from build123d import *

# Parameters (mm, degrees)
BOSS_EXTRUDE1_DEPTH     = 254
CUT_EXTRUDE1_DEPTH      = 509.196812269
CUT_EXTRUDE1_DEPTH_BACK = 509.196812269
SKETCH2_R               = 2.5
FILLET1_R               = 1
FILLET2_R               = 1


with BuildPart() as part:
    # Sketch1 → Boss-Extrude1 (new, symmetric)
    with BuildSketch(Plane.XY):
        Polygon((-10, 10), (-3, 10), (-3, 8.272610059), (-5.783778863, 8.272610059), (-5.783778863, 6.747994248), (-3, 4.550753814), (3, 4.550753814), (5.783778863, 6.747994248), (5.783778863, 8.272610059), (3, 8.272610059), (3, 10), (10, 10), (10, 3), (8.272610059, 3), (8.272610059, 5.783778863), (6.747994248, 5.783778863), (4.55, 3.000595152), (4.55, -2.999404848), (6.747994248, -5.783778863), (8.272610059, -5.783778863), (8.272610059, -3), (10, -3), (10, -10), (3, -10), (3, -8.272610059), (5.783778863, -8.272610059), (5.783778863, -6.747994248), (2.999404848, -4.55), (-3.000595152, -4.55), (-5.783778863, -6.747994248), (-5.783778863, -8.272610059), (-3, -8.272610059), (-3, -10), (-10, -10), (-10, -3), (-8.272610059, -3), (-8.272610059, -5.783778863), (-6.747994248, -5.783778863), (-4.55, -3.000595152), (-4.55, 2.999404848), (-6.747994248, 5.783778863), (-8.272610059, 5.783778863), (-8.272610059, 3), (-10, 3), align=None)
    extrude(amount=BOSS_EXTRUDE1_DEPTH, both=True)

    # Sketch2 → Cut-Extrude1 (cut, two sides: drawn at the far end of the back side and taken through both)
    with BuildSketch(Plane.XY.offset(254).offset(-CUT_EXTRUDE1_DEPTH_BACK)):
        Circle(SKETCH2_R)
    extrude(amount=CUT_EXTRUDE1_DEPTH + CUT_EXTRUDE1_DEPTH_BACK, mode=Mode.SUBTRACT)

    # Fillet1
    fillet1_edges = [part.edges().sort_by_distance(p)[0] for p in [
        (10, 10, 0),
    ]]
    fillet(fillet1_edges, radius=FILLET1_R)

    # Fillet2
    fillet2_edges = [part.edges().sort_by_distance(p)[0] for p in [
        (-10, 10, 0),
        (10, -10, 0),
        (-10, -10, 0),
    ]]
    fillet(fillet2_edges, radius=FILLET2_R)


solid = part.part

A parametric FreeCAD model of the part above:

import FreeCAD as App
import Part
import Sketcher

V = App.Vector
Q = App.Units.Quantity


def edges_at(feature, points):
    """Names of the edges that pass closest to the given points."""
    edges = feature.Shape.Edges
    near = lambda p: min(range(len(edges)), key=lambda i: edges[i].distToShape(Part.Vertex(*p))[0])
    return sorted({f"Edge{near(p) + 1}" for p in points})

doc = App.newDocument("Part")
body = doc.addObject("PartDesign::Body", "Body")

sketch1 = body.newObject("Sketcher::SketchObject", "Sketch")
sketch1.AttachmentSupport = (doc.getObject("XY_Plane"), [""])
sketch1.MapMode = "FlatFace"
sketch1.addGeometry(Part.LineSegment(V(-3, 10, 0), V(-10, 10, 0)), False)
sketch1.addGeometry(Part.LineSegment(V(-10, 10, 0), V(-10, 3, 0)), False)
sketch1.addGeometry(Part.LineSegment(V(-10, 3, 0), V(-8.3, 3, 0)), False)
sketch1.addGeometry(Part.LineSegment(V(-8.3, 3, 0), V(-8.3, 5.8, 0)), False)
sketch1.addGeometry(Part.LineSegment(V(-8.3, 5.8, 0), V(-6.7, 5.8, 0)), False)
sketch1.addGeometry(Part.LineSegment(V(-6.7, 5.8, 0), V(-4.5, 3, 0)), False)
sketch1.addGeometry(Part.LineSegment(V(-4.5, 3, 0), V(-4.5, -3, 0)), False)
sketch1.addGeometry(Part.LineSegment(V(-4.5, -3, 0), V(-6.7, -5.8, 0)), False)
sketch1.addGeometry(Part.LineSegment(V(-6.7, -5.8, 0), V(-8.3, -5.8, 0)), False)
sketch1.addGeometry(Part.LineSegment(V(-8.3, -5.8, 0), V(-8.3, -3, 0)), False)
sketch1.addGeometry(Part.LineSegment(V(-8.3, -3, 0), V(-10, -3, 0)), False)
sketch1.addGeometry(Part.LineSegment(V(-10, -3, 0), V(-10, -10, 0)), False)
sketch1.addGeometry(Part.LineSegment(V(-10, -10, 0), V(-3, -10, 0)), False)
sketch1.addGeometry(Part.LineSegment(V(-3, -10, 0), V(-3, -8.3, 0)), False)
sketch1.addGeometry(Part.LineSegment(V(-3, -8.3, 0), V(-5.8, -8.3, 0)), False)
sketch1.addGeometry(Part.LineSegment(V(-5.8, -8.3, 0), V(-5.8, -6.7, 0)), False)
sketch1.addGeometry(Part.LineSegment(V(-5.8, -6.7, 0), V(-3, -4.5, 0)), False)
sketch1.addGeometry(Part.LineSegment(V(-3, -4.5, 0), V(3, -4.5, 0)), False)
sketch1.addGeometry(Part.LineSegment(V(3, -4.5, 0), V(5.8, -6.7, 0)), False)
sketch1.addGeometry(Part.LineSegment(V(5.8, -6.7, 0), V(5.8, -8.3, 0)), False)
sketch1.addGeometry(Part.LineSegment(V(5.8, -8.3, 0), V(3, -8.3, 0)), False)
sketch1.addGeometry(Part.LineSegment(V(3, -8.3, 0), V(3, -10, 0)), False)
sketch1.addGeometry(Part.LineSegment(V(3, -10, 0), V(10, -10, 0)), False)
sketch1.addGeometry(Part.LineSegment(V(10, -10, 0), V(10, -3, 0)), False)
sketch1.addGeometry(Part.LineSegment(V(10, -3, 0), V(8.3, -3, 0)), False)
sketch1.addGeometry(Part.LineSegment(V(8.3, -3, 0), V(8.3, -5.8, 0)), False)
sketch1.addGeometry(Part.LineSegment(V(8.3, -5.8, 0), V(6.7, -5.8, 0)), False)
sketch1.addGeometry(Part.LineSegment(V(6.7, -5.8, 0), V(4.5, -3, 0)), False)
sketch1.addGeometry(Part.LineSegment(V(4.5, -3, 0), V(4.5, 3, 0)), False)
sketch1.addGeometry(Part.LineSegment(V(4.5, 3, 0), V(6.7, 5.8, 0)), False)
sketch1.addGeometry(Part.LineSegment(V(6.7, 5.8, 0), V(8.3, 5.8, 0)), False)
sketch1.addGeometry(Part.LineSegment(V(8.3, 5.8, 0), V(8.3, 3, 0)), False)
sketch1.addGeometry(Part.LineSegment(V(8.3, 3, 0), V(10, 3, 0)), False)
sketch1.addGeometry(Part.LineSegment(V(10, 3, 0), V(10, 10, 0)), False)
sketch1.addGeometry(Part.LineSegment(V(10, 10, 0), V(3, 10, 0)), False)
sketch1.addGeometry(Part.LineSegment(V(3, 10, 0), V(3, 8.3, 0)), False)
sketch1.addGeometry(Part.LineSegment(V(3, 8.3, 0), V(5.8, 8.3, 0)), False)
sketch1.addGeometry(Part.LineSegment(V(5.8, 8.3, 0), V(5.8, 6.7, 0)), False)
sketch1.addGeometry(Part.LineSegment(V(5.8, 6.7, 0), V(3, 4.6, 0)), False)
sketch1.addGeometry(Part.LineSegment(V(3, 4.6, 0), V(-3, 4.6, 0)), False)
sketch1.addGeometry(Part.LineSegment(V(-3, 4.6, 0), V(-5.8, 6.7, 0)), False)
sketch1.addGeometry(Part.LineSegment(V(-5.8, 6.7, 0), V(-5.8, 8.3, 0)), False)
sketch1.addGeometry(Part.LineSegment(V(-5.8, 8.3, 0), V(-3, 8.3, 0)), False)
sketch1.addGeometry(Part.LineSegment(V(-3, 8.3, 0), V(-3, 10, 0)), False)
sketch1.addConstraint(Sketcher.Constraint("Coincident", 0, 2, 1, 1))
sketch1.addConstraint(Sketcher.Constraint("Coincident", 1, 2, 2, 1))
sketch1.addConstraint(Sketcher.Constraint("Coincident", 2, 2, 3, 1))
sketch1.addConstraint(Sketcher.Constraint("Coincident", 3, 2, 4, 1))
sketch1.addConstraint(Sketcher.Constraint("Coincident", 4, 2, 5, 1))
sketch1.addConstraint(Sketcher.Constraint("Coincident", 5, 2, 6, 1))
sketch1.addConstraint(Sketcher.Constraint("Coincident", 6, 2, 7, 1))
sketch1.addConstraint(Sketcher.Constraint("Coincident", 7, 2, 8, 1))
sketch1.addConstraint(Sketcher.Constraint("Coincident", 8, 2, 9, 1))
sketch1.addConstraint(Sketcher.Constraint("Coincident", 9, 2, 10, 1))
sketch1.addConstraint(Sketcher.Constraint("Coincident", 10, 2, 11, 1))
sketch1.addConstraint(Sketcher.Constraint("Coincident", 11, 2, 12, 1))
sketch1.addConstraint(Sketcher.Constraint("Coincident", 12, 2, 13, 1))
sketch1.addConstraint(Sketcher.Constraint("Coincident", 13, 2, 14, 1))
sketch1.addConstraint(Sketcher.Constraint("Coincident", 14, 2, 15, 1))
sketch1.addConstraint(Sketcher.Constraint("Coincident", 15, 2, 16, 1))
sketch1.addConstraint(Sketcher.Constraint("Coincident", 16, 2, 17, 1))
sketch1.addConstraint(Sketcher.Constraint("Coincident", 17, 2, 18, 1))
sketch1.addConstraint(Sketcher.Constraint("Coincident", 18, 2, 19, 1))
sketch1.addConstraint(Sketcher.Constraint("Coincident", 19, 2, 20, 1))
sketch1.addConstraint(Sketcher.Constraint("Coincident", 20, 2, 21, 1))
sketch1.addConstraint(Sketcher.Constraint("Coincident", 21, 2, 22, 1))
sketch1.addConstraint(Sketcher.Constraint("Coincident", 22, 2, 23, 1))
sketch1.addConstraint(Sketcher.Constraint("Coincident", 23, 2, 24, 1))
sketch1.addConstraint(Sketcher.Constraint("Coincident", 24, 2, 25, 1))
sketch1.addConstraint(Sketcher.Constraint("Coincident", 25, 2, 26, 1))
sketch1.addConstraint(Sketcher.Constraint("Coincident", 26, 2, 27, 1))
sketch1.addConstraint(Sketcher.Constraint("Coincident", 27, 2, 28, 1))
sketch1.addConstraint(Sketcher.Constraint("Coincident", 28, 2, 29, 1))
sketch1.addConstraint(Sketcher.Constraint("Coincident", 29, 2, 30, 1))
sketch1.addConstraint(Sketcher.Constraint("Coincident", 30, 2, 31, 1))
sketch1.addConstraint(Sketcher.Constraint("Coincident", 31, 2, 32, 1))
sketch1.addConstraint(Sketcher.Constraint("Coincident", 32, 2, 33, 1))
sketch1.addConstraint(Sketcher.Constraint("Coincident", 33, 2, 34, 1))
sketch1.addConstraint(Sketcher.Constraint("Coincident", 34, 2, 35, 1))
sketch1.addConstraint(Sketcher.Constraint("Coincident", 35, 2, 36, 1))
sketch1.addConstraint(Sketcher.Constraint("Coincident", 36, 2, 37, 1))
sketch1.addConstraint(Sketcher.Constraint("Coincident", 37, 2, 38, 1))
sketch1.addConstraint(Sketcher.Constraint("Coincident", 38, 2, 39, 1))
sketch1.addConstraint(Sketcher.Constraint("Coincident", 39, 2, 40, 1))
sketch1.addConstraint(Sketcher.Constraint("Coincident", 40, 2, 41, 1))
sketch1.addConstraint(Sketcher.Constraint("Coincident", 41, 2, 42, 1))
sketch1.addConstraint(Sketcher.Constraint("Coincident", 42, 2, 43, 1))
sketch1.addConstraint(Sketcher.Constraint("Coincident", 43, 2, 0, 1))
sketch1.addConstraint(Sketcher.Constraint("Horizontal", 0))
sketch1.addConstraint(Sketcher.Constraint("Vertical", 1))
sketch1.addConstraint(Sketcher.Constraint("Horizontal", 2))
sketch1.addConstraint(Sketcher.Constraint("Vertical", 3))
sketch1.addConstraint(Sketcher.Constraint("Horizontal", 4))
sketch1.addConstraint(Sketcher.Constraint("Vertical", 6))
sketch1.addConstraint(Sketcher.Constraint("Horizontal", 8))
sketch1.addConstraint(Sketcher.Constraint("Vertical", 9))
sketch1.addConstraint(Sketcher.Constraint("Horizontal", 10))
sketch1.addConstraint(Sketcher.Constraint("Vertical", 11))
sketch1.addConstraint(Sketcher.Constraint("Horizontal", 12))
sketch1.addConstraint(Sketcher.Constraint("Vertical", 13))
sketch1.addConstraint(Sketcher.Constraint("Horizontal", 14))
sketch1.addConstraint(Sketcher.Constraint("Vertical", 15))
sketch1.addConstraint(Sketcher.Constraint("Horizontal", 17))
sketch1.addConstraint(Sketcher.Constraint("Vertical", 19))
sketch1.addConstraint(Sketcher.Constraint("Horizontal", 20))
sketch1.addConstraint(Sketcher.Constraint("Vertical", 21))
sketch1.addConstraint(Sketcher.Constraint("Horizontal", 22))
sketch1.addConstraint(Sketcher.Constraint("Vertical", 23))
sketch1.addConstraint(Sketcher.Constraint("Horizontal", 24))
sketch1.addConstraint(Sketcher.Constraint("Vertical", 25))
sketch1.addConstraint(Sketcher.Constraint("Horizontal", 26))
sketch1.addConstraint(Sketcher.Constraint("Vertical", 28))
sketch1.addConstraint(Sketcher.Constraint("Horizontal", 30))
sketch1.addConstraint(Sketcher.Constraint("Vertical", 31))
sketch1.addConstraint(Sketcher.Constraint("Horizontal", 32))
sketch1.addConstraint(Sketcher.Constraint("Vertical", 33))
sketch1.addConstraint(Sketcher.Constraint("Horizontal", 34))
sketch1.addConstraint(Sketcher.Constraint("Vertical", 35))
sketch1.addConstraint(Sketcher.Constraint("Horizontal", 36))
sketch1.addConstraint(Sketcher.Constraint("Vertical", 37))
sketch1.addConstraint(Sketcher.Constraint("Horizontal", 39))
sketch1.addConstraint(Sketcher.Constraint("Vertical", 41))
sketch1.addConstraint(Sketcher.Constraint("Horizontal", 42))
sketch1.addConstraint(Sketcher.Constraint("Vertical", 43))
sketch1.addConstraint(Sketcher.Constraint("Symmetric", 0, 2, 22, 2, -1, 1))
sketch1.addConstraint(Sketcher.Constraint("Symmetric", 2, 2, 24, 2, -1, 1))
sketch1.addConstraint(Sketcher.Constraint("Symmetric", 4, 2, 26, 2, -1, 1))
sketch1.addConstraint(Sketcher.Constraint("Symmetric", 5, 2, 27, 2, -1, 1))
sketch1.addConstraint(Sketcher.Constraint("Symmetric", 7, 2, 29, 2, -1, 1))
sketch1.addConstraint(Sketcher.Constraint("Symmetric", 9, 2, 31, 2, -1, 1))
sketch1.addConstraint(Sketcher.Constraint("Symmetric", 11, 2, 33, 2, -1, 1))
sketch1.addConstraint(Sketcher.Constraint("Symmetric", 13, 2, 35, 2, -1, 1))
sketch1.addConstraint(Sketcher.Constraint("Symmetric", 15, 2, 37, 2, -1, 1))
sketch1.addConstraint(Sketcher.Constraint("Symmetric", 18, 2, 40, 2, -1, 1))
sketch1.addConstraint(Sketcher.Constraint("Symmetric", 20, 2, 42, 2, -1, 1))
sketch1.addConstraint(Sketcher.Constraint("Symmetric", 15, 2, 18, 2, -2))
sketch1.addConstraint(Sketcher.Constraint("Symmetric", 13, 2, 20, 2, -2))
sketch1.addConstraint(Sketcher.Constraint("Symmetric", 11, 2, 22, 2, -2))
sketch1.addConstraint(Sketcher.Constraint("Symmetric", 9, 2, 24, 2, -2))
sketch1.addConstraint(Sketcher.Constraint("Symmetric", 7, 2, 26, 2, -2))
sketch1.addConstraint(Sketcher.Constraint("Parallel", 7, 29))
sketch1.addConstraint(Sketcher.Constraint("Vertical", 35, 2, 38, 2))
sketch1.addConstraint(Sketcher.Constraint("Vertical", 13, 2, 39, 2))
sketch1.addConstraint(Sketcher.Constraint("Equal", 17, 39))
sketch1.addConstraint(Sketcher.Constraint("Equal", 34, 1))
sketch1.addConstraint(Sketcher.Constraint("Equal", 42, 3))
sketch1.addConstraint(Sketcher.Constraint("Equal", 39, 6))
sketch1.addConstraint(Sketcher.Constraint("Equal", 32, 13))
sketch1.addConstraint(Sketcher.Constraint("Equal", 30, 15))
sketch1.addConstraint(Sketcher.Constraint("Equal", 7, 16))
sketch1.addConstraint(Sketcher.Constraint("Equal", 5, 18))
sketch1.addConstraint(Sketcher.Constraint("Equal", 29, 38))
sketch1.addConstraint(Sketcher.Constraint("DistanceX", 0, 2, 0, 1, Q("7 mm")))
sketch1.addConstraint(Sketcher.Constraint("DistanceX", 17, 1, 17, 2, Q("6 mm")))
sketch1.addConstraint(Sketcher.Constraint("DistanceY", -1, 1, 0, 2, Q("10 mm")))
sketch1.addConstraint(Sketcher.Constraint("DistanceX", 5, 2, -1, 1, Q("4.55 mm")))
sketch1.addConstraint(Sketcher.Constraint("DistanceX", 2, 1, 2, 2, Q("1.72739 mm")))
sketch1.addConstraint(Sketcher.Constraint("DistanceX", 14, 2, 14, 1, Q("2.783779 mm")))
sketch1.addConstraint(Sketcher.Constraint("DistanceY", 15, 2, 6, 2, Q("3.747399 mm")))
sketch1.addConstraint(Sketcher.Constraint("Distance", 5, Q("3.547382 mm")))
pad1 = body.newObject("PartDesign::Pad", "Pad")
pad1.Profile = sketch1
pad1.Length = 508
pad1.Midplane = True

sketch2 = body.newObject("Sketcher::SketchObject", "Sketch001")
sketch2.AttachmentSupport = (doc.getObject("XY_Plane"), [""])
sketch2.MapMode = "FlatFace"
sketch2.AttachmentOffset = App.Placement(V(0, 0, 254), App.Rotation())
sketch2.addGeometry(Part.Circle(V(0, 0, 0), V(0, 0, 1), 2.5), False)
sketch2.addConstraint(Sketcher.Constraint("Coincident", 0, 3, -1, 1))
sketch2.addConstraint(Sketcher.Constraint("Diameter", 0, Q("5 mm")))
pocket1 = body.newObject("PartDesign::Pocket", "Pocket")
pocket1.Profile = sketch2
pocket1.Type = "ThroughAll"
pocket1.Midplane = True
doc.recompute()

fillet = body.newObject("PartDesign::Fillet", "Fillet")
fillet.Base = (pocket1, edges_at(pocket1, [(10, 10, 0)]))
fillet.Radius = 1
doc.recompute()

fillet2 = body.newObject("PartDesign::Fillet", "Fillet001")
fillet2.Base = (fillet, edges_at(fillet, [(-10, 10, 0), (10, -10, 0), (-10, -10, 0)]))
fillet2.Radius = 1

doc.recompute()
